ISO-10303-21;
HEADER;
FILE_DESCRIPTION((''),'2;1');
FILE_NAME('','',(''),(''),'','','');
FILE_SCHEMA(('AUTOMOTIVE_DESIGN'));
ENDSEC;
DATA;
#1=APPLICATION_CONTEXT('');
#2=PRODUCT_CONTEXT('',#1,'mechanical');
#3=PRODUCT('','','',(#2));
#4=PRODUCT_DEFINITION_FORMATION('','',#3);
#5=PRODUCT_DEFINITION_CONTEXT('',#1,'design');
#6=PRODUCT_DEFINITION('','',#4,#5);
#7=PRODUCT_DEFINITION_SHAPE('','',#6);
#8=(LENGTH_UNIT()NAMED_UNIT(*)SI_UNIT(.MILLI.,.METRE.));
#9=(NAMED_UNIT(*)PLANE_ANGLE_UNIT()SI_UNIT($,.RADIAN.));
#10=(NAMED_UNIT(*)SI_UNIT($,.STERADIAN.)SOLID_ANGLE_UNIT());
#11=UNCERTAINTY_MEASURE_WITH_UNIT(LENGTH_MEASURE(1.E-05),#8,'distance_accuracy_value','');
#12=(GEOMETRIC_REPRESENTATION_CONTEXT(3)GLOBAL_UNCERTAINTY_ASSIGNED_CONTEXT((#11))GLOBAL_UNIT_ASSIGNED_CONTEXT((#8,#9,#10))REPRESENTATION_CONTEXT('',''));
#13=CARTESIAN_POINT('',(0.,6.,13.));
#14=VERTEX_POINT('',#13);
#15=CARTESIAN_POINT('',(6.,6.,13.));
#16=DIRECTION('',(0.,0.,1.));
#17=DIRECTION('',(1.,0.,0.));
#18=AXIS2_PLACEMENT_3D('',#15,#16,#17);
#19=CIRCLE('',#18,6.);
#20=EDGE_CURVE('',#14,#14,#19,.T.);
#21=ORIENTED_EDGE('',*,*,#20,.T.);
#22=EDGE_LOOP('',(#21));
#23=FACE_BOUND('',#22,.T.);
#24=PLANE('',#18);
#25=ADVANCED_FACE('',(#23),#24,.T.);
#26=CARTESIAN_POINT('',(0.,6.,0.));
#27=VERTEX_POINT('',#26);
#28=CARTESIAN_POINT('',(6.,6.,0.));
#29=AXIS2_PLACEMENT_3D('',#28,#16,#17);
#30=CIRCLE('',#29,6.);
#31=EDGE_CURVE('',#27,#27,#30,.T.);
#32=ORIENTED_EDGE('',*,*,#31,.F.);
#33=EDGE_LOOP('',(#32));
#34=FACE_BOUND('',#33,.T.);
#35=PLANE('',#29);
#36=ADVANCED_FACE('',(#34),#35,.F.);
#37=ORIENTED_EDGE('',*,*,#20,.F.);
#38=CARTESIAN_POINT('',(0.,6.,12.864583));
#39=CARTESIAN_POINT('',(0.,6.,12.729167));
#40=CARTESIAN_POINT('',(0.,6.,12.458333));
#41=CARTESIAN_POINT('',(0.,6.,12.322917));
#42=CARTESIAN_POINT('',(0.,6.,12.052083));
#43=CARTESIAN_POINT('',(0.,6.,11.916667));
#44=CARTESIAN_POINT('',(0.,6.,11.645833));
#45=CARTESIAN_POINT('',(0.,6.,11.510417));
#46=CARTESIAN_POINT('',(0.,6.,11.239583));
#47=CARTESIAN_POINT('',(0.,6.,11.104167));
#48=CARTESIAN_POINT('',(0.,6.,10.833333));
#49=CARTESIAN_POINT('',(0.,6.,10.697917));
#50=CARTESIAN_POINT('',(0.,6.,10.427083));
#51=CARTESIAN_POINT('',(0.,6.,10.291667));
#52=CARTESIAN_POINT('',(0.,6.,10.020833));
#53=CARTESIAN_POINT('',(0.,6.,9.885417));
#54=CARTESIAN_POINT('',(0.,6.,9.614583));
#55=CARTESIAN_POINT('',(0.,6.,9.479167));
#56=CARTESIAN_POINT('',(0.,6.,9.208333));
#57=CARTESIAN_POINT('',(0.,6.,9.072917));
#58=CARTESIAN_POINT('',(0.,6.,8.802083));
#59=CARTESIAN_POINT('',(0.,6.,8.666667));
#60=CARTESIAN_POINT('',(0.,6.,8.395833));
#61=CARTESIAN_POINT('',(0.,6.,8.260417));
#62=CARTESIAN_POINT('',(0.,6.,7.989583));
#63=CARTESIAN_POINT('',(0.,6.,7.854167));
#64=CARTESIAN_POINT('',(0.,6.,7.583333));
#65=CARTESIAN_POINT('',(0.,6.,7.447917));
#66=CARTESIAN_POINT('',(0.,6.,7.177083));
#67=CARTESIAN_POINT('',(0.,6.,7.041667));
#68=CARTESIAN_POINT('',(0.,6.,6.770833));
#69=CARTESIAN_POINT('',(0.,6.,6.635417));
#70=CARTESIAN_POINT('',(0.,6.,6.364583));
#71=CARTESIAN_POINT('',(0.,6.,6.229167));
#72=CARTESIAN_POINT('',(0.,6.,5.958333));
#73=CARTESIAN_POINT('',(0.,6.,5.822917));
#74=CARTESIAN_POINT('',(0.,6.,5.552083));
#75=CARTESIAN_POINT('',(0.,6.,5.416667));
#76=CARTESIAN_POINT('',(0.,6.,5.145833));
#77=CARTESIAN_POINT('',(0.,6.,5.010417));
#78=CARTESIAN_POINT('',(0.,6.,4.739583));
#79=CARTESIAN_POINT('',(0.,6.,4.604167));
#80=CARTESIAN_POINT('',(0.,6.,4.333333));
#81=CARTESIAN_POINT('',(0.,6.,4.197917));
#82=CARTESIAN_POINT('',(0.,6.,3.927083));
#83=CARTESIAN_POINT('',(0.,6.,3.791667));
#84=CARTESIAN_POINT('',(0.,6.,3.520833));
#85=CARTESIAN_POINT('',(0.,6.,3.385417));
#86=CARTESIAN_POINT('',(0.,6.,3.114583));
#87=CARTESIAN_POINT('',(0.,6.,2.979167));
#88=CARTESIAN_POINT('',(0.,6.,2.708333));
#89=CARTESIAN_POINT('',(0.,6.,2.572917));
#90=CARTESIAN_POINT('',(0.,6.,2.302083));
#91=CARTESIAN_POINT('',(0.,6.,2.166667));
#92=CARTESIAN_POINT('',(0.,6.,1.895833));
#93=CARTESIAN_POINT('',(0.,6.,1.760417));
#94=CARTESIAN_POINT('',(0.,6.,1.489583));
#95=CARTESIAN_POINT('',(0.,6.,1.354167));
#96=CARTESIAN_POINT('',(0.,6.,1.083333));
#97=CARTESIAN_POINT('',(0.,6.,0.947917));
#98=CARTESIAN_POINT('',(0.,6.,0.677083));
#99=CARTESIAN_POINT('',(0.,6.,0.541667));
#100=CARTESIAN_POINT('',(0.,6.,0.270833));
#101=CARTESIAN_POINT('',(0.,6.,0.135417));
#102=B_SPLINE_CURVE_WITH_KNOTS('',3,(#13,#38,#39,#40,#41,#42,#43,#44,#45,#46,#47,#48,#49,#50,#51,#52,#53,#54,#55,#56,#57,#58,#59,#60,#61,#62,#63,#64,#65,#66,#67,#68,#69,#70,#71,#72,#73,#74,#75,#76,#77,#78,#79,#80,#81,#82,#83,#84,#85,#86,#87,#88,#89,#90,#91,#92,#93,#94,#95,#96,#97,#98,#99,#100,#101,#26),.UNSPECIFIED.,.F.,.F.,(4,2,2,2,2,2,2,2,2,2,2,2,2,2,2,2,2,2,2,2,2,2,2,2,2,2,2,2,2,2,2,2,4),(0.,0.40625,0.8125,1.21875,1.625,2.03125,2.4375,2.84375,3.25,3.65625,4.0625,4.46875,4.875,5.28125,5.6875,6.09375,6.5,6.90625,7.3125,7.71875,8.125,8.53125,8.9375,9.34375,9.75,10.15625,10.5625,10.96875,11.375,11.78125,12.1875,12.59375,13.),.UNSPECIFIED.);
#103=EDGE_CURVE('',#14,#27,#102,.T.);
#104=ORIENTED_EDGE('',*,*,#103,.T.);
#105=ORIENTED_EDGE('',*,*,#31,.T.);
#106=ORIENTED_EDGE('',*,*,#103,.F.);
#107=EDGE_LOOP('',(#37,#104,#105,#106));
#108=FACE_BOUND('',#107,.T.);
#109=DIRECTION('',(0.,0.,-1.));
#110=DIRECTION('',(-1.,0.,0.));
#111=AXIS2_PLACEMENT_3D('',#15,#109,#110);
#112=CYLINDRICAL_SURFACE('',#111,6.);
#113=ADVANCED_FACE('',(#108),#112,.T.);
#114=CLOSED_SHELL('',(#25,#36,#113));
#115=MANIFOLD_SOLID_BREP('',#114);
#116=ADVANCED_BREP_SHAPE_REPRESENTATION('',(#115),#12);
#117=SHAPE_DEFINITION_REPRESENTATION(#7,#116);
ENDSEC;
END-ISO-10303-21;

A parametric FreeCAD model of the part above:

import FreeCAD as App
import Part
import Sketcher

V = App.Vector
Q = App.Units.Quantity

doc = App.newDocument("Part")
body = doc.addObject("PartDesign::Body", "Body")

# Sketch on XY plane
sketch1 = body.newObject("Sketcher::SketchObject", "Sketch")
sketch1.AttachmentSupport = (doc.getObject("XY_Plane"), [""])
sketch1.MapMode = "FlatFace"
sketch1.addGeometry(Part.Circle(V(6, 6, 0), V(0, 0, 1), 6), False)
sketch1.addConstraint(Sketcher.Constraint("Diameter", 0, Q("12 mm")))
sketch1.addConstraint(Sketcher.Constraint("DistanceX", -1, 1, 0, 3, Q("6 mm")))
sketch1.addConstraint(Sketcher.Constraint("DistanceY", -1, 1, 0, 3, Q("6 mm")))
pad1 = body.newObject("PartDesign::Pad", "Pad")
pad1.Profile = sketch1
pad1.Length = 13

doc.recompute()
